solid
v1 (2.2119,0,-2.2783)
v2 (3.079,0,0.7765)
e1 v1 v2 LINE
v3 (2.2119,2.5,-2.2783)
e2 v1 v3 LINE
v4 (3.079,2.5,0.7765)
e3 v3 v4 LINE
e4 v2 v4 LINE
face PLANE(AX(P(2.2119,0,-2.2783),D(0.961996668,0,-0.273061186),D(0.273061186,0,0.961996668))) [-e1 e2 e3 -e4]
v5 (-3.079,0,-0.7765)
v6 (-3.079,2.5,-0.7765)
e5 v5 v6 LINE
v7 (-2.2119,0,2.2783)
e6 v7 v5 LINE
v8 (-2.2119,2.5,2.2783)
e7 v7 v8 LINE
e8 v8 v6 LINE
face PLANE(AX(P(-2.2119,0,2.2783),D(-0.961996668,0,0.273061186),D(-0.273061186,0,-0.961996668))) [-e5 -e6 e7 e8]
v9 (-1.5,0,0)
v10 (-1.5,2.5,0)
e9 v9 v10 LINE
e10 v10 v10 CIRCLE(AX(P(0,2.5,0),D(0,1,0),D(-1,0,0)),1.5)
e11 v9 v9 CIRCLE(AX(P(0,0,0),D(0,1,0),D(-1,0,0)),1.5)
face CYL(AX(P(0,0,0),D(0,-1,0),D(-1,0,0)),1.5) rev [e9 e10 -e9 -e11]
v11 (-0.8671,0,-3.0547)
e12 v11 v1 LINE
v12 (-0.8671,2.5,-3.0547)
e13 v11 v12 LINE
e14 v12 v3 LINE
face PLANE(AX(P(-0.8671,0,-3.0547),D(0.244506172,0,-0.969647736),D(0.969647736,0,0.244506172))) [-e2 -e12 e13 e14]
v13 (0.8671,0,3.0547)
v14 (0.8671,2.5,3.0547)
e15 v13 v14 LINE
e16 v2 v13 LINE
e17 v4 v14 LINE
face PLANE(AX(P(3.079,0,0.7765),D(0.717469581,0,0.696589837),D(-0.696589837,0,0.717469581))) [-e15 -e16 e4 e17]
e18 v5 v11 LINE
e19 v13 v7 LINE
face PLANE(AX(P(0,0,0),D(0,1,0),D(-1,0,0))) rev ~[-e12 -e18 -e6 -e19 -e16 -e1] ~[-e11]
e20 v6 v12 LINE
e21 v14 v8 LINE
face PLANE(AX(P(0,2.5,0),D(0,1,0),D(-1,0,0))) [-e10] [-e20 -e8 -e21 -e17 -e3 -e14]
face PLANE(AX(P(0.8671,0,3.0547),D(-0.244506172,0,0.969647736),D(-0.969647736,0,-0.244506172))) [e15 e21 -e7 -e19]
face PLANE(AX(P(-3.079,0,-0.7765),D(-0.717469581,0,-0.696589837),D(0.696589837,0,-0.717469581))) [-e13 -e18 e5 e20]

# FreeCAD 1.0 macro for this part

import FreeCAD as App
import Part
import Sketcher

V = App.Vector
Q = App.Units.Quantity

doc = App.newDocument("Part")
body = doc.addObject("PartDesign::Body", "Body")

sketch1 = doc.addObject("Sketcher::SketchObject", "Sketch")
body.addObject(sketch1)
sketch1.AttachmentSupport = (doc.XZ_Plane, [""])
sketch1.MapMode = "FlatFace"
sketch1.addGeometry([
    Part.LineSegment(V(-0.9, -3.1, 0), V(-3.1, -0.8, 0)),
    Part.LineSegment(V(-3.1, -0.8, 0), V(-2.2, 2.3, 0)),
    Part.LineSegment(V(-2.2, 2.3, 0), V(0.9, 3.1, 0)),
    Part.LineSegment(V(0.9, 3.1, 0), V(3.1, 0.8, 0)),
    Part.LineSegment(V(3.1, 0.8, 0), V(2.2, -2.3, 0)),
    Part.LineSegment(V(2.2, -2.3, 0), V(-0.9, -3.1, 0)),
    Part.Circle(V(0, 0, 0), V(0, 0, 1), 1.5),
], False)
sketch1.addConstraint([
    Sketcher.Constraint("Coincident", 0, 2, 1, 1),
    Sketcher.Constraint("Coincident", 1, 2, 2, 1),
    Sketcher.Constraint("Coincident", 2, 2, 3, 1),
    Sketcher.Constraint("Coincident", 3, 2, 4, 1),
    Sketcher.Constraint("Coincident", 4, 2, 5, 1),
    Sketcher.Constraint("Coincident", 5, 2, 0, 1),
    Sketcher.Constraint("Coincident", 6, 3, -1, 1),
    Sketcher.Constraint("Symmetric", 0, 2, 3, 2, -1, 1),
    Sketcher.Constraint("Symmetric", 1, 2, 4, 2, -1, 1),
    Sketcher.Constraint("Symmetric", 2, 2, 5, 2, -1, 1),
    Sketcher.Constraint("Equal", 0, 1),
    Sketcher.Constraint("Equal", 1, 2),
    Sketcher.Constraint("Diameter", 6, Q("3 mm")),
    Sketcher.Constraint("DistanceX", 0, 2, -1, 1, Q("3.079 mm")),
    Sketcher.Constraint("DistanceX", 1, 2, -1, 1, Q("2.212 mm")),
    Sketcher.Constraint("DistanceX", -1, 1, 2, 2, Q("0.867 mm")),
    Sketcher.Constraint("DistanceY", 0, 2, 3, 2, Q("1.553 mm")),
])
pad1 = doc.addObject("PartDesign::Pad", "Pad")
body.addObject(pad1)
pad1.Profile = sketch1
pad1.Length = 2.5
pad1.Reversed = True

doc.recompute()
